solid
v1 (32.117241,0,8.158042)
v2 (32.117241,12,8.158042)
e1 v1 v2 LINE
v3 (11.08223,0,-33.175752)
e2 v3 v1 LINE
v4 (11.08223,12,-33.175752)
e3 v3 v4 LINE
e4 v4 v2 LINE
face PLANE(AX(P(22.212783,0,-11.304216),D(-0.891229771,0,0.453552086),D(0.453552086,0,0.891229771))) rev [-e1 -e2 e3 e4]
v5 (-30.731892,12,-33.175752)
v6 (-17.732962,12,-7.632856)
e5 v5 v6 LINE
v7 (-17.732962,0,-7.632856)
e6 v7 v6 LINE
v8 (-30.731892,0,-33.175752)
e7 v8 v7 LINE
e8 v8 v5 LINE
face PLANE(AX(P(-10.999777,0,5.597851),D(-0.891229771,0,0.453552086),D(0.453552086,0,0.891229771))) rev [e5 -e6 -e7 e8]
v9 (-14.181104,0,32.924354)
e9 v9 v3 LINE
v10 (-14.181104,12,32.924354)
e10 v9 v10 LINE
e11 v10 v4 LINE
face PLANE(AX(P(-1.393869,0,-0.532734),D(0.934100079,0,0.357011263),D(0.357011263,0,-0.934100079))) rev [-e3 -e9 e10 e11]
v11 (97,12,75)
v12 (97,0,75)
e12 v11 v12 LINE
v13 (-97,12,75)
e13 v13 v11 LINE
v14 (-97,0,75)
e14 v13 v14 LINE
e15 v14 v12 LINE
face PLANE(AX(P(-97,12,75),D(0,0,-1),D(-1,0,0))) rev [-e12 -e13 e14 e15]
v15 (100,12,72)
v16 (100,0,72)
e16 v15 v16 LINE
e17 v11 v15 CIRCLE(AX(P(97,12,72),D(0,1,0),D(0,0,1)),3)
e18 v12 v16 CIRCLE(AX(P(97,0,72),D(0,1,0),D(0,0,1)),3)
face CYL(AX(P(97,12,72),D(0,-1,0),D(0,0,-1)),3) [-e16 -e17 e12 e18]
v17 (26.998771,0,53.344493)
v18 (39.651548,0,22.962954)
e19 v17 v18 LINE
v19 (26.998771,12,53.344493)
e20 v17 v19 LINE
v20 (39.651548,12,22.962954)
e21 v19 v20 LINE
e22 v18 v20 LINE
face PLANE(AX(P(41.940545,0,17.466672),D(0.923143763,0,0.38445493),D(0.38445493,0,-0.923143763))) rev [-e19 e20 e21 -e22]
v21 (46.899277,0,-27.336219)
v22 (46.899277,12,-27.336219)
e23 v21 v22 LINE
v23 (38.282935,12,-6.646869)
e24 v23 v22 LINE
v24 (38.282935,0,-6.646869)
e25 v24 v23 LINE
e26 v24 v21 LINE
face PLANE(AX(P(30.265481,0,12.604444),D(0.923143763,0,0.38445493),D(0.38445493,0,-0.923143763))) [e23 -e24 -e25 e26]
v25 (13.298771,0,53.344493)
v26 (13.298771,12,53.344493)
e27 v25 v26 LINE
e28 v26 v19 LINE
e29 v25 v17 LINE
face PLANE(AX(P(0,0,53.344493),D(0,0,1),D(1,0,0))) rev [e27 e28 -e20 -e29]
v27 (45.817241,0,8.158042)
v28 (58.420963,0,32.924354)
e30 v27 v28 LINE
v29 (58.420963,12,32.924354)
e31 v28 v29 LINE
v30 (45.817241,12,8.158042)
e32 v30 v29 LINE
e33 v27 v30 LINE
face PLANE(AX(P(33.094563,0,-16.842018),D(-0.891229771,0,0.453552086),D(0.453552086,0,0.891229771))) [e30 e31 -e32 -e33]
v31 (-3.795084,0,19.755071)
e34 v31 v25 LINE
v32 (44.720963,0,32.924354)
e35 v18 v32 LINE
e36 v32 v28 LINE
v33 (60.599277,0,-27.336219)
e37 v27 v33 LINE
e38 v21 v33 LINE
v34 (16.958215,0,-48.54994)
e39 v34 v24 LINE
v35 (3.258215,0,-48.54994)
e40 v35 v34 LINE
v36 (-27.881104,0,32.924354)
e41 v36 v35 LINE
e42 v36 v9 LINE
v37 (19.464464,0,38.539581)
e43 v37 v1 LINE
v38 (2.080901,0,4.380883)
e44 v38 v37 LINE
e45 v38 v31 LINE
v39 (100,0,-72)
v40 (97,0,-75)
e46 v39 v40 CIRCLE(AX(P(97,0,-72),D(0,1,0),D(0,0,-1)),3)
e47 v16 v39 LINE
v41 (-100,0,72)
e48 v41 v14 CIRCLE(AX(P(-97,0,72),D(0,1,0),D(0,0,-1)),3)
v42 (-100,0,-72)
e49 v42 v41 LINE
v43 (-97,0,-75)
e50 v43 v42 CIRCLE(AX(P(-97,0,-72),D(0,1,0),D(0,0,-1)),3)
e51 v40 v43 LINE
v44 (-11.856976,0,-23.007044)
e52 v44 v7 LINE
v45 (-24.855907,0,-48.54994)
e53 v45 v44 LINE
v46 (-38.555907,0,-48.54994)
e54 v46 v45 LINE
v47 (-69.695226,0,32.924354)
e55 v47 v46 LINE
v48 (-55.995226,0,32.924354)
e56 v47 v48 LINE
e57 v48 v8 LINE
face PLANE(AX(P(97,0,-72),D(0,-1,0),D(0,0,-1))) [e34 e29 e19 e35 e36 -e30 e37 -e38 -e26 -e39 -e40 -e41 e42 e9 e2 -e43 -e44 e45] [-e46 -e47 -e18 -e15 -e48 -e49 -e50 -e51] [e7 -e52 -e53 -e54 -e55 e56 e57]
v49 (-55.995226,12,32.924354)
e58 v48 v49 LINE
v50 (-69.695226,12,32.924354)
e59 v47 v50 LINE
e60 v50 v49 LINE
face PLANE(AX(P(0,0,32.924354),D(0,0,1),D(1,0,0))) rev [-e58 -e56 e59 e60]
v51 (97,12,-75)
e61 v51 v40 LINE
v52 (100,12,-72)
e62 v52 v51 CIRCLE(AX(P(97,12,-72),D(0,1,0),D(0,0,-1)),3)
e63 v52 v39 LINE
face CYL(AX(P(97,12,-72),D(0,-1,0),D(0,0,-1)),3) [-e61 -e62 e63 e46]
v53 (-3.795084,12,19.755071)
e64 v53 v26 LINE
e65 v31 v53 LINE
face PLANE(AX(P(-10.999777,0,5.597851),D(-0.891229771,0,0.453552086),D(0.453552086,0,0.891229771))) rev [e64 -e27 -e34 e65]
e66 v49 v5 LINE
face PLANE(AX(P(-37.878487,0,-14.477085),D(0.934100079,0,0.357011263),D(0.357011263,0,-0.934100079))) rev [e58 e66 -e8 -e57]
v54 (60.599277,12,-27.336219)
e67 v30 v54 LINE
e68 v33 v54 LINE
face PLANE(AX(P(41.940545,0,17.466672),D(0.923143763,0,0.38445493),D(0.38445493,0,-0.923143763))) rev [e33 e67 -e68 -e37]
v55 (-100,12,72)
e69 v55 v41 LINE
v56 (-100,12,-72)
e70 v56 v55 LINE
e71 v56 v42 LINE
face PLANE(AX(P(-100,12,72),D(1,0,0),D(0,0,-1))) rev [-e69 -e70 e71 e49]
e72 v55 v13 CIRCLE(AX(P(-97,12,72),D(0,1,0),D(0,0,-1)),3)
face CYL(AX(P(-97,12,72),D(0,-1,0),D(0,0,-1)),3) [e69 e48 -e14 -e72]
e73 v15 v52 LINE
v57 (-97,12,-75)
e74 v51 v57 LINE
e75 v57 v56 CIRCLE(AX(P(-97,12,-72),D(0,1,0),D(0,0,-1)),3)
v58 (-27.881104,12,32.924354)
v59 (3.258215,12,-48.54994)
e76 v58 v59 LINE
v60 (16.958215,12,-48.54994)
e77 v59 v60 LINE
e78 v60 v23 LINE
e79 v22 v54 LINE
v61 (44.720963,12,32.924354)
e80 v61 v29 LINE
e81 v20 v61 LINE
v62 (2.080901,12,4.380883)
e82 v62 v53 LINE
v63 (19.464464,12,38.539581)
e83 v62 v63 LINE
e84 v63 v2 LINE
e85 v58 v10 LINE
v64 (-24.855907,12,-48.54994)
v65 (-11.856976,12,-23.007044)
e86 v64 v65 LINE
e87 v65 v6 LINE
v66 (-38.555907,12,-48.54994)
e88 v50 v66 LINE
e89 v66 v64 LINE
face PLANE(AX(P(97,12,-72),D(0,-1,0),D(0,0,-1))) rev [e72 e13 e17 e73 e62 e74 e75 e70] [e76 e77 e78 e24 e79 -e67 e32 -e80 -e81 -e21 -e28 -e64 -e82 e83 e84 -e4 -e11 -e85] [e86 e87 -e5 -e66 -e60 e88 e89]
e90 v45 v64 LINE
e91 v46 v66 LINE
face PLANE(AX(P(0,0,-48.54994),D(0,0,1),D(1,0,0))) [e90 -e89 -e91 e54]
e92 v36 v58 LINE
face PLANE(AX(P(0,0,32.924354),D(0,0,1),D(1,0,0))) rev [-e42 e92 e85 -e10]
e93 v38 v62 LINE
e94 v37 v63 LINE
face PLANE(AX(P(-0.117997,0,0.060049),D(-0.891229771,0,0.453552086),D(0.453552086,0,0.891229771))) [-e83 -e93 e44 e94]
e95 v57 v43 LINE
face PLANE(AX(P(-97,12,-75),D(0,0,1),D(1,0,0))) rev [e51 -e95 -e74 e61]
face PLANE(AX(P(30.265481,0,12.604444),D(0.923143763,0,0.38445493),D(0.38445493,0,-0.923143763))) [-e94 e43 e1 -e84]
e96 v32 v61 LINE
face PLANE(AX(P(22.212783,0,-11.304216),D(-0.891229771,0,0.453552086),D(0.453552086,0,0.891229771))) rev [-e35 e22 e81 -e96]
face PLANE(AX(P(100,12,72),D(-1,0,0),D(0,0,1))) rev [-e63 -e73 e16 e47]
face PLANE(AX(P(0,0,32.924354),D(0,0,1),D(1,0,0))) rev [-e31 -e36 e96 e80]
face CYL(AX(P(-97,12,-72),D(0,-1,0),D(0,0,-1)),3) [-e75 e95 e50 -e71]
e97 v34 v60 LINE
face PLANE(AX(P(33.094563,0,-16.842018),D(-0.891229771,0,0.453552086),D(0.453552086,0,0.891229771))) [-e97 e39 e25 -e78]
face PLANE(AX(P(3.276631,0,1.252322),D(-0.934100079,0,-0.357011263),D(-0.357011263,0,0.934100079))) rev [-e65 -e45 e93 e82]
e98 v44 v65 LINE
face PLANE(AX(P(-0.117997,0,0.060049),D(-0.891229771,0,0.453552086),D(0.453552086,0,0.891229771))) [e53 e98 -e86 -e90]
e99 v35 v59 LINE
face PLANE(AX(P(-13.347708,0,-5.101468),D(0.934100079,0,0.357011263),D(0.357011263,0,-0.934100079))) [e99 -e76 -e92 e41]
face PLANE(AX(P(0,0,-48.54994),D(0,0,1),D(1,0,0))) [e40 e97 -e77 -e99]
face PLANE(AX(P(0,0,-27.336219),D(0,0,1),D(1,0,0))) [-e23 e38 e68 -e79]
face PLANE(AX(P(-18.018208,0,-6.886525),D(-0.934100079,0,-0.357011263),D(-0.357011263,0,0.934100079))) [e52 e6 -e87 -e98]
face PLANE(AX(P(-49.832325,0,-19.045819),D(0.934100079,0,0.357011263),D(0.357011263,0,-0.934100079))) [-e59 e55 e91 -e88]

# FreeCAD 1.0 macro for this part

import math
import FreeCAD as App
import Part
import Sketcher


def add_polygon(sketch, points):
    """Adds a closed chain of lines whose ends are joined by coincident constraints."""
    first, n = sketch.GeometryCount, len(points)
    for a, b in zip(points, points[1:] + points[:1]):
        sketch.addGeometry(Part.LineSegment(App.Vector(*a, 0), App.Vector(*b, 0)), False)
    for i in range(n):
        sketch.addConstraint(Sketcher.Constraint("Coincident", first + i, 2, first + (i + 1) % n, 1))

doc = App.newDocument("Part")
body = doc.addObject("PartDesign::Body", "Body")

sketch1 = doc.addObject("Sketcher::SketchObject", "Sketch")
body.addObject(sketch1)
sketch1.AttachmentSupport = (doc.XZ_Plane, [""])
sketch1.MapMode = "FlatFace"
sketch1.addGeometry([
    Part.LineSegment(App.Vector(-97, 75, 0), App.Vector(97, 75, 0)),
    Part.ArcOfCircle(Part.Circle(App.Vector(97, 72, 0), App.Vector(0, 0, 1), 3), math.radians(0), math.radians(90)),
    Part.LineSegment(App.Vector(100, 72, 0), App.Vector(100, -72, 0)),
    Part.ArcOfCircle(Part.Circle(App.Vector(97, -72, 0), App.Vector(0, 0, 1), 3), math.radians(-90), math.radians(0)),
    Part.LineSegment(App.Vector(97, -75, 0), App.Vector(-97, -75, 0)),
    Part.ArcOfCircle(Part.Circle(App.Vector(-97, -72, 0), App.Vector(0, 0, 1), 3), math.radians(180), math.radians(270)),
    Part.LineSegment(App.Vector(-100, -72, 0), App.Vector(-100, 72, 0)),
    Part.ArcOfCircle(Part.Circle(App.Vector(-97, 72, 0), App.Vector(0, 0, 1), 3), math.radians(90), math.radians(180)),
], False)
sketch1.addConstraint([
    Sketcher.Constraint("Tangent", 0, 2, 1, 2),
    Sketcher.Constraint("Tangent", 1, 1, 2, 1),
    Sketcher.Constraint("Tangent", 2, 2, 3, 2),
    Sketcher.Constraint("Tangent", 3, 1, 4, 1),
    Sketcher.Constraint("Tangent", 4, 2, 5, 2),
    Sketcher.Constraint("Tangent", 5, 1, 6, 1),
    Sketcher.Constraint("Tangent", 6, 2, 7, 2),
    Sketcher.Constraint("Tangent", 7, 1, 0, 1),
    Sketcher.Constraint("Horizontal", 0),
    Sketcher.Constraint("Vertical", 2),
    Sketcher.Constraint("Horizontal", 4),
    Sketcher.Constraint("Vertical", 6),
    Sketcher.Constraint("Equal", 1, 3),
    Sketcher.Constraint("Equal", 3, 5),
    Sketcher.Constraint("Equal", 5, 7),
    Sketcher.Constraint("Symmetric", 1, 3, 5, 3, -1, 1),
    Sketcher.Constraint("Radius", 1, 3.0),
    Sketcher.Constraint("DistanceX", 0, 1, 0, 2, 194.0),
    Sketcher.Constraint("DistanceY", 2, 2, 2, 1, 144.0),
])
pad1 = doc.addObject("PartDesign::Pad", "Pad")
body.addObject(pad1)
pad1.Profile = sketch1
pad1.Length = 12
pad1.Reversed = True

sketch2 = doc.addObject("Sketcher::SketchObject", "Sketch001")
body.addObject(sketch2)
sketch2.AttachmentSupport = (doc.XZ_Plane, [""])
sketch2.MapMode = "FlatFace"
sketch2.AttachmentOffset = App.Placement(App.Vector(0, 0, -12), App.Rotation())
add_polygon(sketch2, [(-12, -23), (-25, -49), (-39, -49), (-70, 33), (-56, 33), (-31, -33), (-18, -8)])
add_polygon(sketch2, [(58, 33), (46, 8), (61, -27), (47, -27), (38, -7), (17, -49), (3, -49), (-28, 33), (-14, 33), (11, -33), (32, 8), (19, 39), (2, 4), (-4, 20), (13, 53), (27, 53), (40, 23), (45, 33)])
sketch2.addConstraint([
    Sketcher.Constraint("Horizontal", 1),
    Sketcher.Constraint("Horizontal", 3),
    Sketcher.Constraint("Horizontal", 9),
    Sketcher.Constraint("Horizontal", 12),
    Sketcher.Constraint("Horizontal", 14),
    Sketcher.Constraint("Horizontal", 21),
    Sketcher.Constraint("Horizontal", 24),
    Sketcher.Constraint("Parallel", 2, 4),
    Sketcher.Constraint("Parallel", 0, 5),
    Sketcher.Constraint("Parallel", 4, 6),
    Sketcher.Constraint("Parallel", 5, 7),
    Sketcher.Constraint("Parallel", 8, 10),
    Sketcher.Constraint("Parallel", 7, 11),
    Sketcher.Constraint("Parallel", 6, 13),
    Sketcher.Constraint("Parallel", 13, 15),
    Sketcher.Constraint("Parallel", 11, 16),
    Sketcher.Constraint("Parallel", 10, 17),
    Sketcher.Constraint("Parallel", 16, 18),
    Sketcher.Constraint("Parallel", 15, 19),
    Sketcher.Constraint("Parallel", 18, 20),
    Sketcher.Constraint("Parallel", 17, 22),
    Sketcher.Constraint("Parallel", 20, 23),
    Sketcher.Constraint("Horizontal", 1, 2, 11, 2),
    Sketcher.Constraint("Horizontal", 3, 2, 13, 2),
    Sketcher.Constraint("Horizontal", 4, 2, 15, 2),
    Sketcher.Constraint("Horizontal", 7, 2, 16, 2),
    Sketcher.Constraint("Horizontal", 14, 2, 23, 2),
    Sketcher.Constraint("Equal", 1, 3),
    Sketcher.Constraint("Equal", 3, 9),
    Sketcher.Constraint("Equal", 9, 12),
    Sketcher.Constraint("Equal", 12, 14),
    Sketcher.Constraint("Equal", 14, 21),
    Sketcher.Constraint("Equal", 21, 24),
    Sketcher.Constraint("Equal", 6, 19),
    Sketcher.Constraint("Equal", 17, 22),
    Sketcher.Constraint("DistanceX", 1, 2, 1, 1, 13.7),
    Sketcher.Constraint("DistanceX", 16, 2, 7, 2, 13.7),
    Sketcher.Constraint("Distance", 18, 38.3276),
    Sketcher.Constraint("DistanceX", -1, 1, 18, 2, 2.080901),
    Sketcher.Constraint("DistanceY", 5, 2, 7, 2, 15.790898),
    Sketcher.Constraint("DistanceY", 22, 2, 23, 2, 9.9614),
    Sketcher.Constraint("DistanceX", 17, 2, 23, 2, 25.256499),
    Sketcher.Constraint("Distance", 0, 28.660281),
    Sketcher.Constraint("Distance", 2, 87.222232),
    Sketcher.Constraint("Distance", 4, 70.763409),
    Sketcher.Constraint("Distance", 7, 27.788918),
    Sketcher.Constraint("Distance", 10, 22.41184),
    Sketcher.Constraint("Distance", 17, 32.910951),
    Sketcher.Constraint("DistanceY", 0, 2, -1, 1, 48.54994),
    Sketcher.Constraint("DistanceX", 4, 2, -1, 1, 30.731892),
])
pocket1 = doc.addObject("PartDesign::Pocket", "Pocket")
body.addObject(pocket1)
pocket1.Profile = sketch2
pocket1.Length = 12
pocket1.Reversed = True

doc.recompute()
